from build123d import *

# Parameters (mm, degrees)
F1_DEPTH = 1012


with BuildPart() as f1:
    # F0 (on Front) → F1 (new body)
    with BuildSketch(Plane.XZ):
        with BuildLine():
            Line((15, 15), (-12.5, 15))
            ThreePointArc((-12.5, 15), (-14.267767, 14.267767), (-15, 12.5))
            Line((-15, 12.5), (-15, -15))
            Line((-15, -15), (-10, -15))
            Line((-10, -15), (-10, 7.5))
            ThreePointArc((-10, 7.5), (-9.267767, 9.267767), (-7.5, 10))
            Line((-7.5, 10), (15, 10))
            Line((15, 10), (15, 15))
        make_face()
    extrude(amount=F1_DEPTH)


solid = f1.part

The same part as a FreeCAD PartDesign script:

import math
import FreeCAD as App
import Part
import Sketcher

V = App.Vector

doc = App.newDocument("Part")
body = doc.addObject("PartDesign::Body", "Body")

# Sketch on XZ plane
sketch1 = body.newObject("Sketcher::SketchObject", "Sketch")
sketch1.AttachmentSupport = (doc.getObject("XZ_Plane"), [""])
sketch1.MapMode = "FlatFace"
sketch1.addGeometry(Part.LineSegment(V(15, 15, 0), V(-12.5, 15, 0)), False)
sketch1.addGeometry(Part.ArcOfCircle(Part.Circle(V(-12.5, 12.5, 0), V(0, 0, 1), 2.5), math.radians(90), math.radians(180)), False)
sketch1.addGeometry(Part.LineSegment(V(-15, 12.5, 0), V(-15, -15, 0)), False)
sketch1.addGeometry(Part.LineSegment(V(-15, -15, 0), V(-10, -15, 0)), False)
sketch1.addGeometry(Part.LineSegment(V(-10, -15, 0), V(-10, 7.5, 0)), False)
sketch1.addGeometry(Part.ArcOfCircle(Part.Circle(V(-7.5, 7.5, 0), V(0, 0, 1), 2.5), math.radians(90), math.radians(180)), False)
sketch1.addGeometry(Part.LineSegment(V(-7.5, 10, 0), V(15, 10, 0)), False)
sketch1.addGeometry(Part.LineSegment(V(15, 10, 0), V(15, 15, 0)), False)
sketch1.addConstraint(Sketcher.Constraint("Tangent", 0, 2, 1, 1))
sketch1.addConstraint(Sketcher.Constraint("Tangent", 1, 2, 2, 1))
sketch1.addConstraint(Sketcher.Constraint("Coincident", 2, 2, 3, 1))
sketch1.addConstraint(Sketcher.Constraint("Coincident", 3, 2, 4, 1))
sketch1.addConstraint(Sketcher.Constraint("Tangent", 4, 2, 5, 2))
sketch1.addConstraint(Sketcher.Constraint("Tangent", 5, 1, 6, 1))
sketch1.addConstraint(Sketcher.Constraint("Coincident", 6, 2, 7, 1))
sketch1.addConstraint(Sketcher.Constraint("Coincident", 7, 2, 0, 1))
sketch1.addConstraint(Sketcher.Constraint("Horizontal", 0))
sketch1.addConstraint(Sketcher.Constraint("Vertical", 2))
sketch1.addConstraint(Sketcher.Constraint("Horizontal", 3))
sketch1.addConstraint(Sketcher.Constraint("Vertical", 4))
sketch1.addConstraint(Sketcher.Constraint("Horizontal", 6))
sketch1.addConstraint(Sketcher.Constraint("Vertical", 7))
sketch1.addConstraint(Sketcher.Constraint("Equal", 1, 5))
sketch1.addConstraint(Sketcher.Constraint("Symmetric", 2, 2, 7, 2, -1, 1))
sketch1.addConstraint(Sketcher.Constraint("Equal", 0, 2))
sketch1.addConstraint(Sketcher.Constraint("Equal", 6, 4))
sketch1.addConstraint(Sketcher.Constraint("Radius", 1, 2.5))
sketch1.addConstraint(Sketcher.Constraint("DistanceX", 3, 1, 3, 2, 5.0))
sketch1.addConstraint(Sketcher.Constraint("DistanceX", 0, 2, 0, 1, 27.5))
pad1 = body.newObject("PartDesign::Pad", "Pad")
pad1.Profile = sketch1
pad1.Length = 1012

doc.recompute()
